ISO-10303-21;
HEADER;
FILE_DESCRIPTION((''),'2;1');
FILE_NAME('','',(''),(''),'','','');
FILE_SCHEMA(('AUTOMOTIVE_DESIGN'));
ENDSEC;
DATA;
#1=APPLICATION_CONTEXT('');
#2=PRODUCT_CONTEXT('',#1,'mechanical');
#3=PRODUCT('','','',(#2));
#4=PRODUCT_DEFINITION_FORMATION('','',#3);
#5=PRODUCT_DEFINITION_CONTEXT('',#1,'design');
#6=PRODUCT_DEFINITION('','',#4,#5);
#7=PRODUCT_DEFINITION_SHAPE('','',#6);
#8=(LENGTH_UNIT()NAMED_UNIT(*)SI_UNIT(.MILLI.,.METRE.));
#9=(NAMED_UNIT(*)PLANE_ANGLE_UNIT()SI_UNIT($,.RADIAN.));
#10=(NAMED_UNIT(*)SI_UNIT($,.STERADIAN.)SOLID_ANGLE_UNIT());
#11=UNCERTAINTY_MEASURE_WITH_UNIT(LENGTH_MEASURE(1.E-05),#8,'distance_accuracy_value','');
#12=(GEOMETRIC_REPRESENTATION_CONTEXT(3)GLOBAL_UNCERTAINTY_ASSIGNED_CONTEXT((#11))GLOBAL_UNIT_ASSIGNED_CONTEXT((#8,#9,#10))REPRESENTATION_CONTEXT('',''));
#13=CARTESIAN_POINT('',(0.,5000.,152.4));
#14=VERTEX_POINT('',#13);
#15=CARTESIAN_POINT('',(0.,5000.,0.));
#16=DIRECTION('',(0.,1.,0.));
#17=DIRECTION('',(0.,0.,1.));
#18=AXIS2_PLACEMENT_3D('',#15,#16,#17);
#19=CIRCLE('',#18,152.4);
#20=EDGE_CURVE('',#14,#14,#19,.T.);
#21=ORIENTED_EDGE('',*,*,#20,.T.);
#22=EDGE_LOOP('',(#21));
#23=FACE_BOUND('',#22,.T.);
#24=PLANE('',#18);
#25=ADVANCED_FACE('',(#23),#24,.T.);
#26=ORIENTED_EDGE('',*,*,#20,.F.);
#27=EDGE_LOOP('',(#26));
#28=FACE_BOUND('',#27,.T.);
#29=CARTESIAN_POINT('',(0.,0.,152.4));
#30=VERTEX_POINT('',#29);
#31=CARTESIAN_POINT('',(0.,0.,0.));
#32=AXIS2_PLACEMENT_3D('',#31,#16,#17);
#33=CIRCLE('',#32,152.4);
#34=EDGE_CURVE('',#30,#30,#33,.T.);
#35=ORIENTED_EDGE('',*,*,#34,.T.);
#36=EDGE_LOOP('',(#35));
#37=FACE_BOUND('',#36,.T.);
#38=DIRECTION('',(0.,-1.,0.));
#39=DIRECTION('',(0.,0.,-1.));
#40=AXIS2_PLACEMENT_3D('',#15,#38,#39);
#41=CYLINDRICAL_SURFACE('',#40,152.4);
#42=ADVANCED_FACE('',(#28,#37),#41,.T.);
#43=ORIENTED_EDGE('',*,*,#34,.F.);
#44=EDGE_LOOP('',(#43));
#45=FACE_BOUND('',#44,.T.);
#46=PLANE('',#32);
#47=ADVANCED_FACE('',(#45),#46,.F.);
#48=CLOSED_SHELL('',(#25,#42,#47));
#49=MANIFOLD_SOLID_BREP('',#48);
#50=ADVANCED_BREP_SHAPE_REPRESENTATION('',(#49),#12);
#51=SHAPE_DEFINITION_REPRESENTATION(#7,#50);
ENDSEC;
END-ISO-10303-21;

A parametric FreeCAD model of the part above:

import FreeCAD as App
import Part
import Sketcher

V = App.Vector
Q = App.Units.Quantity

doc = App.newDocument("Part")
body = doc.addObject("PartDesign::Body", "Body")

# Sketch on XZ plane
sketch1 = body.newObject("Sketcher::SketchObject", "Sketch")
sketch1.AttachmentSupport = (doc.getObject("XZ_Plane"), [""])
sketch1.MapMode = "FlatFace"
sketch1.addGeometry(Part.Circle(V(0, 0, 0), V(0, 0, 1), 152.4), False)
sketch1.addConstraint([
    Sketcher.Constraint("Coincident", 0, 3, -1, 1),
    Sketcher.Constraint("Diameter", 0, Q("304.8 mm")),
])
pad1 = body.newObject("PartDesign::Pad", "Pad")
pad1.Profile = sketch1
pad1.Length = 5000
pad1.Reversed = True

doc.recompute()
